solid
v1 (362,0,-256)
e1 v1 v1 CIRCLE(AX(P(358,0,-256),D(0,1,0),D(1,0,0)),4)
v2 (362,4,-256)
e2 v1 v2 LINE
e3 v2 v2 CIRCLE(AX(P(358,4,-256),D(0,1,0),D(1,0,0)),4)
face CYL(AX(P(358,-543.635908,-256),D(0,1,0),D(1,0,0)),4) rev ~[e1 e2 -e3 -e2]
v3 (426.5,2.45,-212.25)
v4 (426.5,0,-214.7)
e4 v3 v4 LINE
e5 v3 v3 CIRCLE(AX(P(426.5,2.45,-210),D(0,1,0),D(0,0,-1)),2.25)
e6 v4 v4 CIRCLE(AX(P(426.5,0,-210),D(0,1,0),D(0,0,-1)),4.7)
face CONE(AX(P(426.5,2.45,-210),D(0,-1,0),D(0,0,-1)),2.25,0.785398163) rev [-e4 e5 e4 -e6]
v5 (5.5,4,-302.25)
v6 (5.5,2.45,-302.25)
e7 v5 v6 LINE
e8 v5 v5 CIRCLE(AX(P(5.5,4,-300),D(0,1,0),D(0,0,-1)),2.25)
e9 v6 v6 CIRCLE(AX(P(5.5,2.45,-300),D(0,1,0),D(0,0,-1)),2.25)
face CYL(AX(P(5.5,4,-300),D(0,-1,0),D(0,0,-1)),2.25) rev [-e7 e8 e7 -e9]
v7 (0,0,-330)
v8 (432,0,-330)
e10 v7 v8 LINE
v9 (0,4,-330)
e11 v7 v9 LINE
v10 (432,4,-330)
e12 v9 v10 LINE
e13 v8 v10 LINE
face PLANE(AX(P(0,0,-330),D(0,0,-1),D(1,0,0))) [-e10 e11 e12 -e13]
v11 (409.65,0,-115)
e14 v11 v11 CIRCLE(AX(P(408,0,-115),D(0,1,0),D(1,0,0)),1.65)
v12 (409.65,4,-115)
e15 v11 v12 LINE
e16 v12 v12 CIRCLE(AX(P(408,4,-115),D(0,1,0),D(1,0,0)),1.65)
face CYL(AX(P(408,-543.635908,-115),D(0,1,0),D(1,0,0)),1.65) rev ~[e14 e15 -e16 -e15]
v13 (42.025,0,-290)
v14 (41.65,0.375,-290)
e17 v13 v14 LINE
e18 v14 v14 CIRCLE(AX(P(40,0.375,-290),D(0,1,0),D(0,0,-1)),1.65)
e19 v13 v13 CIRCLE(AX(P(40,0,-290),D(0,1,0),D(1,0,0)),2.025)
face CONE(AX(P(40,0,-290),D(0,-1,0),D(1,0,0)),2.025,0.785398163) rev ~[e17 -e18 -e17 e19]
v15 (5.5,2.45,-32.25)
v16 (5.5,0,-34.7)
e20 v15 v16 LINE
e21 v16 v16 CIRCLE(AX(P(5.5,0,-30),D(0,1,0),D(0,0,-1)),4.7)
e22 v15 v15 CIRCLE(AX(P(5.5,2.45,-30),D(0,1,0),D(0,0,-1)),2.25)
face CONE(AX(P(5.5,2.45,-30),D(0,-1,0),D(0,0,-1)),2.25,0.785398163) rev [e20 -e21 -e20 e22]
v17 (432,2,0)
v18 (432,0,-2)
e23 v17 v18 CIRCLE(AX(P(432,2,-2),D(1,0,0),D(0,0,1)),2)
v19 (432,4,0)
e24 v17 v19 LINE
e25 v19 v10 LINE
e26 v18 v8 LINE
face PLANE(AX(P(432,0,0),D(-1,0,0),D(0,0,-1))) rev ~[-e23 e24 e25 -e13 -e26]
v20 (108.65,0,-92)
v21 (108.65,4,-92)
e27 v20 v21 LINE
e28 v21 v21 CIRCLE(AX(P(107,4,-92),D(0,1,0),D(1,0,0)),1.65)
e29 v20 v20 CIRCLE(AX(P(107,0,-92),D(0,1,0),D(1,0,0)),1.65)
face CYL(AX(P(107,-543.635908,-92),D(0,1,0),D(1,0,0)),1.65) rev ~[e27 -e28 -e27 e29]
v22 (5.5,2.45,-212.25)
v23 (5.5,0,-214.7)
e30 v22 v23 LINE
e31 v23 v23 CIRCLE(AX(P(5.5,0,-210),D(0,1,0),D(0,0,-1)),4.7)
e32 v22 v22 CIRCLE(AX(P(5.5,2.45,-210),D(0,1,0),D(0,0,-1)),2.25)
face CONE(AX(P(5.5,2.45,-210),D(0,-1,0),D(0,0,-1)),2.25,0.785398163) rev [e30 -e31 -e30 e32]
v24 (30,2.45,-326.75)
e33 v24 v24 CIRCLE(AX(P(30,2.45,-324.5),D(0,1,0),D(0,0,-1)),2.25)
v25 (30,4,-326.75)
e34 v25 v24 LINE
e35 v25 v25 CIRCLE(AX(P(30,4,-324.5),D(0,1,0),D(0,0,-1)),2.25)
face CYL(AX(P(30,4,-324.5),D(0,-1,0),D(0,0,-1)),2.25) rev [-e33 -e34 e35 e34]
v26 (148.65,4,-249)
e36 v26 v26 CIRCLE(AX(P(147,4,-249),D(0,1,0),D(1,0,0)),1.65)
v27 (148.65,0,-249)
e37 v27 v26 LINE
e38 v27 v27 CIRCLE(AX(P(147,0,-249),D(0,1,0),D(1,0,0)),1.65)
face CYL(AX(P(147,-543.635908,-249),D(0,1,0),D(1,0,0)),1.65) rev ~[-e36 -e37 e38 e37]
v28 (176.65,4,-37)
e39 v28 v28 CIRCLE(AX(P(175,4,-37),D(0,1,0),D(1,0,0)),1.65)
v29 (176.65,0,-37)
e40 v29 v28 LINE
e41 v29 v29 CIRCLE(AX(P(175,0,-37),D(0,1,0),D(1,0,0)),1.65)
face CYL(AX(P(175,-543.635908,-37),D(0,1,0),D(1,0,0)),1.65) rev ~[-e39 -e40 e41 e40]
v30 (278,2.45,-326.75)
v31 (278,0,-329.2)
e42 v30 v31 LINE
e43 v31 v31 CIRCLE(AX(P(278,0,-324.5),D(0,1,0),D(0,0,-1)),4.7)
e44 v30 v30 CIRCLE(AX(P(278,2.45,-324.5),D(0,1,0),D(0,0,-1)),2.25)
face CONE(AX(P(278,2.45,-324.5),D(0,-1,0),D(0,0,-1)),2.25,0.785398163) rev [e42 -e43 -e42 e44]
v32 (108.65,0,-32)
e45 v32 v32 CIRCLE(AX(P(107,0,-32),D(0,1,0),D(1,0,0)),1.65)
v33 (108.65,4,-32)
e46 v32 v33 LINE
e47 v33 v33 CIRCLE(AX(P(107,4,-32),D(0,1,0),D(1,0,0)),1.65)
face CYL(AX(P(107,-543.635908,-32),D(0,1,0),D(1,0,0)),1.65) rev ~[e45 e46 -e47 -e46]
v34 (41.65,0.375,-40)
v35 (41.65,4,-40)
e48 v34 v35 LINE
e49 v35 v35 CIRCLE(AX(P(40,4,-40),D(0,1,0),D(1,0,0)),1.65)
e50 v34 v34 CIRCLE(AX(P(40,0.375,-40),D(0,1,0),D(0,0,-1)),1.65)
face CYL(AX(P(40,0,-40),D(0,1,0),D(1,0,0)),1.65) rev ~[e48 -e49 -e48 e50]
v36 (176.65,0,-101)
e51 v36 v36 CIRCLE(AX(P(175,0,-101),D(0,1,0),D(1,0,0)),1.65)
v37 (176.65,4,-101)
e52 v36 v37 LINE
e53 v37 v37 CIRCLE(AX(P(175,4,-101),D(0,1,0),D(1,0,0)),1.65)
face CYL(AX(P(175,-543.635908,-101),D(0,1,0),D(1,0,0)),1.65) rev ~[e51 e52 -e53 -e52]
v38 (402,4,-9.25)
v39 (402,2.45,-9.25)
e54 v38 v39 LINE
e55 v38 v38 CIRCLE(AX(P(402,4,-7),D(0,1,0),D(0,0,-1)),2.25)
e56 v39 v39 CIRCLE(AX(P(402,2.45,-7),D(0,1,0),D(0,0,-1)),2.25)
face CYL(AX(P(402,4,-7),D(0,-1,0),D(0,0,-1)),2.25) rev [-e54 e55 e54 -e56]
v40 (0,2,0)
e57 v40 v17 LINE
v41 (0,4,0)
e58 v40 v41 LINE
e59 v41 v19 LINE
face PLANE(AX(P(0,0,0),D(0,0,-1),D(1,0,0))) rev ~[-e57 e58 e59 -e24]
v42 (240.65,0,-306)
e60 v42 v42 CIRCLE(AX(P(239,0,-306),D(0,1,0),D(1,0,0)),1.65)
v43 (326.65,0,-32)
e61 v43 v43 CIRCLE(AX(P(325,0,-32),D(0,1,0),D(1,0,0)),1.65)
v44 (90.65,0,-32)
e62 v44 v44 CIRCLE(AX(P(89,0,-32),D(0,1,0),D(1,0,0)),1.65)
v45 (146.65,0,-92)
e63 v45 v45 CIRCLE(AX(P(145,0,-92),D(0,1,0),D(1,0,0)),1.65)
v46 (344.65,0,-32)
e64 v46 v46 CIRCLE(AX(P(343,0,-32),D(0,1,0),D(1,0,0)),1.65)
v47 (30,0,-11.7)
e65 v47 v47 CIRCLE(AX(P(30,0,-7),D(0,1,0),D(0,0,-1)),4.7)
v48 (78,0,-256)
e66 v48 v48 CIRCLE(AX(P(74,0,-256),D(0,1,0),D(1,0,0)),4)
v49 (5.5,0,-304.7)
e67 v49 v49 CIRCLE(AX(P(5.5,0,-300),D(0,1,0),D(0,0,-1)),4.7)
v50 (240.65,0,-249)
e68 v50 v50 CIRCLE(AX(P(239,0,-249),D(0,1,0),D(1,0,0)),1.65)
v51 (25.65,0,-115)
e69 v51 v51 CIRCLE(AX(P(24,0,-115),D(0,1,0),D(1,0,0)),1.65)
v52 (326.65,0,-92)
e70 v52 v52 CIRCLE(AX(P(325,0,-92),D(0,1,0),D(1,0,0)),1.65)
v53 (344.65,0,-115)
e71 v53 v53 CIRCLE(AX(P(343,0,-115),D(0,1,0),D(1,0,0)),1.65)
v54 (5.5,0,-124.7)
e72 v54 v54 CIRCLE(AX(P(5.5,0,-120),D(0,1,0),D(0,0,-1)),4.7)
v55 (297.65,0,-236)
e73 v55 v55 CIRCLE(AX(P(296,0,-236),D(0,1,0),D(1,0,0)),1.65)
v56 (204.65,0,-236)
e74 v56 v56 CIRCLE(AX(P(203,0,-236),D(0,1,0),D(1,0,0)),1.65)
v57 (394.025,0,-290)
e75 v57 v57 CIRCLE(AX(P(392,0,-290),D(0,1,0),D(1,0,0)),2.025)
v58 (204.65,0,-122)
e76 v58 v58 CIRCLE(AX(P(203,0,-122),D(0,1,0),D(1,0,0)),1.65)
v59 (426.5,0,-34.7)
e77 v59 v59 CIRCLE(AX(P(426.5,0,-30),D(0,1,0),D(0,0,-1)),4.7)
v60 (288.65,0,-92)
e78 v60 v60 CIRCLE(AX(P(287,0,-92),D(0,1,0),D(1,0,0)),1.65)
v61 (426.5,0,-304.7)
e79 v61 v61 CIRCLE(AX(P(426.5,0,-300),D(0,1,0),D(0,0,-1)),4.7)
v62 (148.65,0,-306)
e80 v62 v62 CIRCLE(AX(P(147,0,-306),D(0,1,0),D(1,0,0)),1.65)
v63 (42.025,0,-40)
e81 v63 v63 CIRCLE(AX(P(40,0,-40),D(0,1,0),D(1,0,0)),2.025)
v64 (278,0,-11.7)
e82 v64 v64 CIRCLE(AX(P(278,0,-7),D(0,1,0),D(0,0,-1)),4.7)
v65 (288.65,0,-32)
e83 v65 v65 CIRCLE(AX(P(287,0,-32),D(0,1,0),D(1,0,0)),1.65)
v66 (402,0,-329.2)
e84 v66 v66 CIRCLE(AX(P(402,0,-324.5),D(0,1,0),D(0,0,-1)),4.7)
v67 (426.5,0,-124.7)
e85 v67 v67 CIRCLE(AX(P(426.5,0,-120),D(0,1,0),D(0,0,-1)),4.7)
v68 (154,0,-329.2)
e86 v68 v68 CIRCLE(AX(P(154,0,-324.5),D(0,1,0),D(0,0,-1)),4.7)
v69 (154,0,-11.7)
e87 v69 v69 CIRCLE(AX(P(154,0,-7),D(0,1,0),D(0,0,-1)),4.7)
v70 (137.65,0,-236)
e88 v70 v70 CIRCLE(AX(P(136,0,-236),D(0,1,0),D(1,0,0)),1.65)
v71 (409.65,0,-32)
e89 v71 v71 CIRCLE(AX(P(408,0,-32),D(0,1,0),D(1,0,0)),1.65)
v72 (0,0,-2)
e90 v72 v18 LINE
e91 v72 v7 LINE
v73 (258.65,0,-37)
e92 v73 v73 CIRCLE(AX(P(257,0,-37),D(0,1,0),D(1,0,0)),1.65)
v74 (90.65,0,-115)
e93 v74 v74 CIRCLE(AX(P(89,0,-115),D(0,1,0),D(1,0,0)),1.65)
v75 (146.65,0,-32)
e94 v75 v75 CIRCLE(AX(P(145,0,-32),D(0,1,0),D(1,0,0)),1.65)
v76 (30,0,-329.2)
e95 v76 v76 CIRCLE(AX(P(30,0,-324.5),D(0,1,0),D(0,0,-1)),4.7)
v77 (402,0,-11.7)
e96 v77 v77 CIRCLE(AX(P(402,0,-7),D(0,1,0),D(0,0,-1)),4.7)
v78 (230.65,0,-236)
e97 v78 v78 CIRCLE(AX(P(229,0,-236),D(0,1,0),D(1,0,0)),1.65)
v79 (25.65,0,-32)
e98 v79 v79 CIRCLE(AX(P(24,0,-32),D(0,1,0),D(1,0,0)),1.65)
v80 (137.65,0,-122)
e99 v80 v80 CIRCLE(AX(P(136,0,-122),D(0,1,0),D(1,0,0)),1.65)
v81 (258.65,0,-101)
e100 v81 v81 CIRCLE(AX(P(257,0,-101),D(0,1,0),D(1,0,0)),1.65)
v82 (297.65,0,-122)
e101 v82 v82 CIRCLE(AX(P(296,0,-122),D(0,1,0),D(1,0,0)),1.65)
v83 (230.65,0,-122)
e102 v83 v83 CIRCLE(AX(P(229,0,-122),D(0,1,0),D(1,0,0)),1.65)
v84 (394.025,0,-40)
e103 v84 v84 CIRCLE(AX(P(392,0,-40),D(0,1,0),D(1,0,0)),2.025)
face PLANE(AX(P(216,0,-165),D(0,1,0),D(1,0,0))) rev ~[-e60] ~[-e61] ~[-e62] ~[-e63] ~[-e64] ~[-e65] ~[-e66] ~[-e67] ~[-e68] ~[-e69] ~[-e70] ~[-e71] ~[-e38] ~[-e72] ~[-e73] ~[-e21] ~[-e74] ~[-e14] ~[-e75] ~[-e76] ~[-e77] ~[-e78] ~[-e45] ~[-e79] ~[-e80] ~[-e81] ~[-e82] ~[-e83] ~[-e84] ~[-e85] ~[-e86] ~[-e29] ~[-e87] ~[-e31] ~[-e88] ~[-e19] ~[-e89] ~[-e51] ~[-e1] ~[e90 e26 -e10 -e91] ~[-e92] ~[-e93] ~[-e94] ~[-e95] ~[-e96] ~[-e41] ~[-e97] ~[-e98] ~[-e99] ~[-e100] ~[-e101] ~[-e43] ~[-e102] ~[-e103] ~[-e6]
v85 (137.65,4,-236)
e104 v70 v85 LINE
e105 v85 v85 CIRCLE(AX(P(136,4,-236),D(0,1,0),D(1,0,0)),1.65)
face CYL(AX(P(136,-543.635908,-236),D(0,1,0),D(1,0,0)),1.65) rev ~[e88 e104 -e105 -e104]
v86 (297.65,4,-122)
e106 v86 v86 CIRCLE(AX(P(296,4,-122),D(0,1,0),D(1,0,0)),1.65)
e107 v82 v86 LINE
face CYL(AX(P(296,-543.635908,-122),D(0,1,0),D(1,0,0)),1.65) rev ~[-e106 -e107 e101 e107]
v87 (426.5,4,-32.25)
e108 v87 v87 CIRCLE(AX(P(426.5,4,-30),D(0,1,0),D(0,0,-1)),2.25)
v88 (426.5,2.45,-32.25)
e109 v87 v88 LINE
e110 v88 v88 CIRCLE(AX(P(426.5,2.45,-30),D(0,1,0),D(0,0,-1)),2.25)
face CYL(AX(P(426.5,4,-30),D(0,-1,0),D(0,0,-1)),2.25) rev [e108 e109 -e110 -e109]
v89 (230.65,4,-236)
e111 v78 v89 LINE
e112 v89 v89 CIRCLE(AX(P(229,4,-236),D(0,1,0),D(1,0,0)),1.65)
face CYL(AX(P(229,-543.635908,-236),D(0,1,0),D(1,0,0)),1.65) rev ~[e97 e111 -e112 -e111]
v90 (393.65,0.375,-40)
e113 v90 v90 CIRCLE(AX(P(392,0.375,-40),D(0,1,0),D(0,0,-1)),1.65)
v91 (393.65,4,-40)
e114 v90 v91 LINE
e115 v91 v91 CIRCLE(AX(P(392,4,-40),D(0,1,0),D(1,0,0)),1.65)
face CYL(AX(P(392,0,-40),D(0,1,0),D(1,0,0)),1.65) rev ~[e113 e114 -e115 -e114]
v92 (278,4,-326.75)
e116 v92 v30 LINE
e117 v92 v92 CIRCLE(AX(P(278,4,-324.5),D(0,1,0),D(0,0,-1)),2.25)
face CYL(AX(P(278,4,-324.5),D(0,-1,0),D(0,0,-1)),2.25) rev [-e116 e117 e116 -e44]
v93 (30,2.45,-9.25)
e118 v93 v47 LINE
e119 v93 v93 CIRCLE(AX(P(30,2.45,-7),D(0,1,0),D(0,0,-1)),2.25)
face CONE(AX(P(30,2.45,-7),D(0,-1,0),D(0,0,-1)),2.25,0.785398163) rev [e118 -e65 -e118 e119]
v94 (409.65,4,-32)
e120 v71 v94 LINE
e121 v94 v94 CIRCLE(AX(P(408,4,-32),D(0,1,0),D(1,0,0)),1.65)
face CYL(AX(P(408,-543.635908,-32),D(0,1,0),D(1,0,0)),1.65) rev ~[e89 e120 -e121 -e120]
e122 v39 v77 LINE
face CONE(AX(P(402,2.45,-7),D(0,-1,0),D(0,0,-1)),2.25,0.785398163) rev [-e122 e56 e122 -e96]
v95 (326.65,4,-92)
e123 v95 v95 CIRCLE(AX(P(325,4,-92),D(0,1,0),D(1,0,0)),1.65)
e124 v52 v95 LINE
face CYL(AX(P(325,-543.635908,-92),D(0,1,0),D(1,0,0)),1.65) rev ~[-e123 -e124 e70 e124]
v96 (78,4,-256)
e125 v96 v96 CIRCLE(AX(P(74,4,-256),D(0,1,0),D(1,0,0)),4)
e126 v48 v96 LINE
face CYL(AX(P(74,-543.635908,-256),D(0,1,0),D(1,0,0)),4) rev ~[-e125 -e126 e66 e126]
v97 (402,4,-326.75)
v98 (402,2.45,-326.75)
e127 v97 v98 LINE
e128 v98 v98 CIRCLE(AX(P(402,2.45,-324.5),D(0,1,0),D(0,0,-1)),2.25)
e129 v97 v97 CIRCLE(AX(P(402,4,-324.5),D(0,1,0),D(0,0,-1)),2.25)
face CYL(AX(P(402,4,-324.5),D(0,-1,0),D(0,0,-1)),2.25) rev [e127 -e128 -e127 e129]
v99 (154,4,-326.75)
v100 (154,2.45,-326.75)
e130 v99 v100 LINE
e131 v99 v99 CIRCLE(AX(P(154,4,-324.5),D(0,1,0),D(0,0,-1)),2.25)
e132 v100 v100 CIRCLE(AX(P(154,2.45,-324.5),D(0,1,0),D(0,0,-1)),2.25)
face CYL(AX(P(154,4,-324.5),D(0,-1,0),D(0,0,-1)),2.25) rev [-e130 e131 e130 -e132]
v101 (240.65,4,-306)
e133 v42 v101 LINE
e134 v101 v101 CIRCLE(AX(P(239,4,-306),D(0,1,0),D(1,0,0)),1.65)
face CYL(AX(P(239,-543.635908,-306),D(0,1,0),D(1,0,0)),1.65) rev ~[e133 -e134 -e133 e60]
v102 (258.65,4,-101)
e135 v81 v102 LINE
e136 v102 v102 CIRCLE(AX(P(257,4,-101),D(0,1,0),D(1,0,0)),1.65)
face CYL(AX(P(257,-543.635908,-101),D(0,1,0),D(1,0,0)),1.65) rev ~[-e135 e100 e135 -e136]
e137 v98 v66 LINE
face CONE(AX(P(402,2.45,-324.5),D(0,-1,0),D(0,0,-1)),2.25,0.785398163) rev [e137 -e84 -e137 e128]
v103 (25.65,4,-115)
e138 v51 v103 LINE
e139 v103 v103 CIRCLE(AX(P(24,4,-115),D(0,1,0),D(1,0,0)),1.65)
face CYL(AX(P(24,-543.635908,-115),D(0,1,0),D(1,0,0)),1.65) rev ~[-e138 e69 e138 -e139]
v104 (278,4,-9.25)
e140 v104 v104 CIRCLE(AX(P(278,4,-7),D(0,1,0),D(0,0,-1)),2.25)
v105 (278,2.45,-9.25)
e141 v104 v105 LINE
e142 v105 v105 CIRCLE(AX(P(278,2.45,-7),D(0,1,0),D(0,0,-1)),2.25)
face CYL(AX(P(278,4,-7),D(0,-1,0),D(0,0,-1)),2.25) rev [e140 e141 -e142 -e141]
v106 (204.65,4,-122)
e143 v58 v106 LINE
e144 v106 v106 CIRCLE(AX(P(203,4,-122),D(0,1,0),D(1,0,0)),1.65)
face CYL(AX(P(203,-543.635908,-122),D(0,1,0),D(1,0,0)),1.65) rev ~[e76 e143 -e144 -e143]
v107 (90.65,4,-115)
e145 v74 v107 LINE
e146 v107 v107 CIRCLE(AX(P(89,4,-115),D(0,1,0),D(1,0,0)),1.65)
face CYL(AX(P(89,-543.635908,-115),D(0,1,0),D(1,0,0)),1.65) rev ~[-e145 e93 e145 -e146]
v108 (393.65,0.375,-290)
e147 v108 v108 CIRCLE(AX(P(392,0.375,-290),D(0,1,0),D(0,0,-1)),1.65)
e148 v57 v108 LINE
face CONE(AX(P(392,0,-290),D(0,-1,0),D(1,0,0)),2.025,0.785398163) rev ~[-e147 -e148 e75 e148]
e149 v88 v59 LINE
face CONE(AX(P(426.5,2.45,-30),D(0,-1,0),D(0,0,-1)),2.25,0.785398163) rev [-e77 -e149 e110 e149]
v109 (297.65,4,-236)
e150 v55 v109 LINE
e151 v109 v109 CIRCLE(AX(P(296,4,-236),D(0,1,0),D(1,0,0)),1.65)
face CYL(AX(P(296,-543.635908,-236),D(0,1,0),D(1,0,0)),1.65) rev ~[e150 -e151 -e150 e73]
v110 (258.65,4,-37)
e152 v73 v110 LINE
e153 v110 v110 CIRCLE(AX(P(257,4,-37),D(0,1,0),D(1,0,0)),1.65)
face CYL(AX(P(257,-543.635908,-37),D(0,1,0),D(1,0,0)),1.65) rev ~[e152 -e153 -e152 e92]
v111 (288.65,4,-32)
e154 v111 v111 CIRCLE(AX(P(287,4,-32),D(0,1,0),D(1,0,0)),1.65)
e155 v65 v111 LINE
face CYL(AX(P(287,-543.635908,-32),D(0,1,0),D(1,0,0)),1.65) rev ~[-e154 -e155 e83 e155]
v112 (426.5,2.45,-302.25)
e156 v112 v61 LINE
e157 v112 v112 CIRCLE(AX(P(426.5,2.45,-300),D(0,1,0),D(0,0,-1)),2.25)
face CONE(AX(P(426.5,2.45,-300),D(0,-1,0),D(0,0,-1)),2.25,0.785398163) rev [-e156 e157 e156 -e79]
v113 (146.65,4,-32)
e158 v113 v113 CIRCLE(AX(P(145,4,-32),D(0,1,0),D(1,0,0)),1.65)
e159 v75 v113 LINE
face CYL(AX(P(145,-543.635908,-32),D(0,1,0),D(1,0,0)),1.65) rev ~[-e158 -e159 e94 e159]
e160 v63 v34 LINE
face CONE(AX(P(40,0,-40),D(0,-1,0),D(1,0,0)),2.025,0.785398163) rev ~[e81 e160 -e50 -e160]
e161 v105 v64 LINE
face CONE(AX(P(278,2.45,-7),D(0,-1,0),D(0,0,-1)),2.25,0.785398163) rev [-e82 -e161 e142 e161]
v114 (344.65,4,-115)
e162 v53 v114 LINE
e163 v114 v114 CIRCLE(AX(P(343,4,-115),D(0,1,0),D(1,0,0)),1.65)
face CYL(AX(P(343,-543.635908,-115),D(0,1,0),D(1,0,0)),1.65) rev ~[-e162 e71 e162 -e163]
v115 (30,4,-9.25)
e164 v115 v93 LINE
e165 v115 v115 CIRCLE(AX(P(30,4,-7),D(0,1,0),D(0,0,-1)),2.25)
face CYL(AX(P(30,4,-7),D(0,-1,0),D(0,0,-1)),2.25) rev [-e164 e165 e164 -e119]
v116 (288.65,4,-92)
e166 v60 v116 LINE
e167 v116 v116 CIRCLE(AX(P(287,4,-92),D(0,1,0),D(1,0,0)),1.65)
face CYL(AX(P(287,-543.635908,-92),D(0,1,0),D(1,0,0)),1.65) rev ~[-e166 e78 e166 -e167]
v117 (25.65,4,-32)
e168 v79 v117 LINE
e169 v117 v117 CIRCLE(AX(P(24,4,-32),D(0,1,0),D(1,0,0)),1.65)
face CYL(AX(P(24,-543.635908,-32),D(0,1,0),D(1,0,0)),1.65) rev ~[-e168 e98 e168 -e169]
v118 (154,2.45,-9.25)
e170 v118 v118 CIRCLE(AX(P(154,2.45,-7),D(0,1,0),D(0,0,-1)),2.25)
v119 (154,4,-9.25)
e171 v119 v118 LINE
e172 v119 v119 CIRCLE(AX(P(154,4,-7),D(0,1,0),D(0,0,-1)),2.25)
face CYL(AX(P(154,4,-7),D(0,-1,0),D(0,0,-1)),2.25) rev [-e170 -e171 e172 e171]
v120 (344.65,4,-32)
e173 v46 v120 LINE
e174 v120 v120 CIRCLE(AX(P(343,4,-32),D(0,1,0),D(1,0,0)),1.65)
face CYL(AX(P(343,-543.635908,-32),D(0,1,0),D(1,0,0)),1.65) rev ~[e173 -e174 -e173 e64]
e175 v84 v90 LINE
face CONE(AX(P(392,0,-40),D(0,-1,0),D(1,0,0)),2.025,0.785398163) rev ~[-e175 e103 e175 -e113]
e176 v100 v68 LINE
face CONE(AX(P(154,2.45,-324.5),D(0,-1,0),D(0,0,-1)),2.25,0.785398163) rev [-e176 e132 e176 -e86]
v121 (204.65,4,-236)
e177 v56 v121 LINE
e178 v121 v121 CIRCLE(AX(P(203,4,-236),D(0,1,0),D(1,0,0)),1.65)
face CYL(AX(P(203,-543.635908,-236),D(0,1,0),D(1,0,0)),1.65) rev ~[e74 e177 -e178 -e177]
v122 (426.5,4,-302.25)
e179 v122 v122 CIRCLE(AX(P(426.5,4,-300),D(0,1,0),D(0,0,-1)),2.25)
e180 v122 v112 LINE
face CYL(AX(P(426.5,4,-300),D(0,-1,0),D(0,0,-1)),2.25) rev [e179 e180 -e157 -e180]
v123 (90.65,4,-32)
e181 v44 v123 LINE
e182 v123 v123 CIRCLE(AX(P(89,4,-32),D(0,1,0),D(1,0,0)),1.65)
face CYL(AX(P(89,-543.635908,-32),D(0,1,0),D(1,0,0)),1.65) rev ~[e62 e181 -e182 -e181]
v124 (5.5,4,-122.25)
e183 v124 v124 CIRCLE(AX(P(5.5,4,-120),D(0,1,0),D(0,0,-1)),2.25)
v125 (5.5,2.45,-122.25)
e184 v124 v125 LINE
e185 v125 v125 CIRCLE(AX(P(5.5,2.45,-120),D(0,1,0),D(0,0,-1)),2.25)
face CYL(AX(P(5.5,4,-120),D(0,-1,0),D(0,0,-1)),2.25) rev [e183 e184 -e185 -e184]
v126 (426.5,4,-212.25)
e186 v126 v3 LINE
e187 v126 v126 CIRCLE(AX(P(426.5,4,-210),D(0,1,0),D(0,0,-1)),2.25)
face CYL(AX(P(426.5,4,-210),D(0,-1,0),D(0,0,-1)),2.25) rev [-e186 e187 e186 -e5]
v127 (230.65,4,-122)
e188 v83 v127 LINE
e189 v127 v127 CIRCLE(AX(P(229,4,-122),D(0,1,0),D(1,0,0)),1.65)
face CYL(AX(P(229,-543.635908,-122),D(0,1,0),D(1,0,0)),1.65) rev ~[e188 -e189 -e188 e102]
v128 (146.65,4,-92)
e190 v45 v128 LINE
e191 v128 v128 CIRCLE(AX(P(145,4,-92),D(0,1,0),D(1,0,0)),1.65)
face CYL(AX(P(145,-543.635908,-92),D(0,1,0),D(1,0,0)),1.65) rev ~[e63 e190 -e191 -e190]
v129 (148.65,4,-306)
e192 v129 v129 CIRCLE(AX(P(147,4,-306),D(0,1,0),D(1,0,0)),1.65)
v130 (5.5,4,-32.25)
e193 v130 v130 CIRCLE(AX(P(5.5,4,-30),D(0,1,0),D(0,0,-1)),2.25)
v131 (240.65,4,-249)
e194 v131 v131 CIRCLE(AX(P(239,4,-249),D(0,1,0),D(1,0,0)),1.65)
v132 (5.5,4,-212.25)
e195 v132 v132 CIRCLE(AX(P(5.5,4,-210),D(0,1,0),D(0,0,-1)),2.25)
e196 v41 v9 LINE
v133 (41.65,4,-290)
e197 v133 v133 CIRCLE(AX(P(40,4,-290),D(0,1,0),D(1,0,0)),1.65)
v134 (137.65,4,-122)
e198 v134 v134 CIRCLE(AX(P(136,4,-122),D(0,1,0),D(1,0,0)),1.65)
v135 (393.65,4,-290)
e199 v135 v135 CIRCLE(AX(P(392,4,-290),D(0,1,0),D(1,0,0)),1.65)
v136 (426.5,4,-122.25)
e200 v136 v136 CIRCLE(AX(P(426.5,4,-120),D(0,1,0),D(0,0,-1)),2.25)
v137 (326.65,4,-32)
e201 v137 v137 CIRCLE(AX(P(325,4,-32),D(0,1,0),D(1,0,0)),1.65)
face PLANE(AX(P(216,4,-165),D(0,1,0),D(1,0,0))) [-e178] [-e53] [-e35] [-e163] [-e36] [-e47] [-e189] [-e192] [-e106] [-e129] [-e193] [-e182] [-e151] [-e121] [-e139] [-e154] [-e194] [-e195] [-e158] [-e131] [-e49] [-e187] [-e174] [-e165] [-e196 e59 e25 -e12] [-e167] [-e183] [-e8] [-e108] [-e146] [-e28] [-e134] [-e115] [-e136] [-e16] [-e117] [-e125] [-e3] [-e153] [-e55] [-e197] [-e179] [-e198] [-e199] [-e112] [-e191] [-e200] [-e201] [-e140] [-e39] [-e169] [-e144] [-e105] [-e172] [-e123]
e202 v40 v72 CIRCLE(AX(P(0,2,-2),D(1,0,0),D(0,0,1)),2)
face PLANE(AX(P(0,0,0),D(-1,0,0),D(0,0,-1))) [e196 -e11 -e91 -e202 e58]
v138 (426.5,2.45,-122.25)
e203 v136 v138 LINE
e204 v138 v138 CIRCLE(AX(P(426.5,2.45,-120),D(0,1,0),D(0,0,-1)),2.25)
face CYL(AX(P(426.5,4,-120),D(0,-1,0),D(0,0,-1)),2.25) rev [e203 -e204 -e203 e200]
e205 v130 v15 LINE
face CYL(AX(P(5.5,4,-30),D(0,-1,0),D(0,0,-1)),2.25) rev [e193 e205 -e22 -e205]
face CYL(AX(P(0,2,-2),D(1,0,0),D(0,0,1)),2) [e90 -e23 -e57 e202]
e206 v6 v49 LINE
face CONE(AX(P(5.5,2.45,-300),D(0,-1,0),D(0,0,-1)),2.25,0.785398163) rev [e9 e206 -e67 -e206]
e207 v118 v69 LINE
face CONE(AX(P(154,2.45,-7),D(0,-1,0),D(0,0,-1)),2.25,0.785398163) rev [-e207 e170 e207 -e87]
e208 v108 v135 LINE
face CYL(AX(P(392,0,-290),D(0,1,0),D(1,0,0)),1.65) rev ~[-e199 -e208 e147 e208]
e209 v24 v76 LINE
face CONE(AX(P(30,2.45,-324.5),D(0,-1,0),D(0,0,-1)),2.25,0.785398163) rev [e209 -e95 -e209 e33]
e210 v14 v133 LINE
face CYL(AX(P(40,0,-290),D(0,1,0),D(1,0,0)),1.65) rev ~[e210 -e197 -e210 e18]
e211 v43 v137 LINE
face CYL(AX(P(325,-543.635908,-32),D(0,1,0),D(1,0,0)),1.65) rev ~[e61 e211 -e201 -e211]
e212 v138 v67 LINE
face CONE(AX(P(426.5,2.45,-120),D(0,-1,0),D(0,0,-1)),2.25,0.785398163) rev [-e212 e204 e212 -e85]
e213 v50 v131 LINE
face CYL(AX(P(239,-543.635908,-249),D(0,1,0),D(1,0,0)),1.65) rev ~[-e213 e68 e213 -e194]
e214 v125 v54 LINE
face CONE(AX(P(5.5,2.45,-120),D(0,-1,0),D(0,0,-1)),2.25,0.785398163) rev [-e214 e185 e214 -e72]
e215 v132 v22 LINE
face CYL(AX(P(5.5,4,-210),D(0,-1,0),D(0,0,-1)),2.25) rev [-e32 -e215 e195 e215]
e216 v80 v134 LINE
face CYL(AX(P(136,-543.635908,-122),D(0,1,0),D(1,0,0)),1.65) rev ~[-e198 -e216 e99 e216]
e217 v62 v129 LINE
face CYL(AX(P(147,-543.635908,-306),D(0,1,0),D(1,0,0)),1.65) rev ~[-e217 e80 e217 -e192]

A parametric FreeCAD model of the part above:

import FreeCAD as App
import Part
import Sketcher
Q = App.Units.Quantity


def edges_at(feature, points):
    """Names of the edges that pass closest to the given points."""
    edges = feature.Shape.Edges
    near = lambda p: min(range(len(edges)), key=lambda i: edges[i].distToShape(Part.Vertex(*p))[0])
    return sorted({f"Edge{near(p) + 1}" for p in points})

doc = App.newDocument("Part")
body = doc.addObject("PartDesign::Body", "Body")

# Sketch on XZ plane
sketch1 = body.newObject("Sketcher::SketchObject", "Sketch")
sketch1.AttachmentSupport = (doc.getObject("XZ_Plane"), [""])
sketch1.MapMode = "FlatFace"
sketch1.addGeometry([
    Part.LineSegment(App.Vector(0, -330, 0), App.Vector(0, 0, 0)),
    Part.LineSegment(App.Vector(0, 0, 0), App.Vector(432, 0, 0)),
    Part.LineSegment(App.Vector(432, 0, 0), App.Vector(432, -330, 0)),
    Part.LineSegment(App.Vector(432, -330, 0), App.Vector(0, -330, 0)),
], False)
sketch1.addConstraint([
    Sketcher.Constraint("Coincident", 0, 2, 1, 1),
    Sketcher.Constraint("Coincident", 1, 2, 2, 1),
    Sketcher.Constraint("Coincident", 2, 2, 3, 1),
    Sketcher.Constraint("Coincident", 3, 2, 0, 1),
    Sketcher.Constraint("Vertical", 0),
    Sketcher.Constraint("Horizontal", 1),
    Sketcher.Constraint("Vertical", 2),
    Sketcher.Constraint("Horizontal", 3),
    Sketcher.Constraint("Coincident", 0, 2, -1, 1),
    Sketcher.Constraint("DistanceX", 1, 1, 1, 2, 432.0),
    Sketcher.Constraint("DistanceY", 0, 1, 0, 2, 330.0),
])
pad1 = body.newObject("PartDesign::Pad", "Pad")
pad1.Profile = sketch1
pad1.Length = 4
pad1.Reversed = True

# Sketch on YZ plane
sketch2 = body.newObject("Sketcher::SketchObject", "Sketch001")
sketch2.AttachmentSupport = (doc.getObject("YZ_Plane"), [""])
sketch2.MapMode = "FlatFace"
sketch2.AttachmentOffset = App.Placement(App.Vector(0, 0, 30), App.Rotation())
sketch2.addGeometry([
    Part.LineSegment(App.Vector(4, -7, 0), App.Vector(0, -7, 0)),  # 0
    Part.LineSegment(App.Vector(0, -7, 0), App.Vector(0, -11.7, 0)),  # 1
    Part.LineSegment(App.Vector(0, -11.7, 0), App.Vector(2.45, -9.25, 0)),  # 2
    Part.LineSegment(App.Vector(2.45, -9.25, 0), App.Vector(4, -9.25, 0)),  # 3
    Part.LineSegment(App.Vector(4, -9.25, 0), App.Vector(4, -7, 0)),  # 4
], False)
sketch2.addGeometry(Part.LineSegment(App.Vector(0, -7, 0), App.Vector(4, -7, 0)), True)  # axis
sketch2.addConstraint([
    Sketcher.Constraint("Coincident", 0, 2, 1, 1),
    Sketcher.Constraint("Coincident", 1, 2, 2, 1),
    Sketcher.Constraint("Coincident", 2, 2, 3, 1),
    Sketcher.Constraint("Coincident", 3, 2, 4, 1),
    Sketcher.Constraint("Coincident", 4, 2, 0, 1),
    Sketcher.Constraint("Horizontal", 0),
    Sketcher.Constraint("Vertical", 1),
    Sketcher.Constraint("Horizontal", 3),
    Sketcher.Constraint("Vertical", 4),
    Sketcher.Constraint("Horizontal", 5),
    Sketcher.Constraint("Coincident", 5, 1, 0, 2),
    Sketcher.Constraint("PointOnObject", 0, 2, -2),
    Sketcher.Constraint("Vertical", 3, 2, 5, 2),
    Sketcher.Constraint("DistanceX", 0, 2, 0, 1, 4.0),
    Sketcher.Constraint("Angle", 2, Q("45 deg")),
    Sketcher.Constraint("DistanceY", 1, 2, 1, 1, 4.7),
    Sketcher.Constraint("DistanceY", 0, 2, -1, 1, 7.0),
    Sketcher.Constraint("DistanceX", 3, 1, 3, 2, 1.55),
])
groove = body.newObject("PartDesign::Groove", "Groove")
groove.Profile = sketch2
groove.ReferenceAxis = (sketch2, ["Axis0"])
groove.Angle = 360
doc.recompute()

datumline = body.newObject("PartDesign::Line", "DatumLine")
datumline.Placement = App.Placement(App.Vector(0, 0, 0), App.Rotation(App.Vector(0, 0, 1), App.Vector(-0.083326947, 0, -0.996522263)))
linearpattern = body.newObject("PartDesign::LinearPattern", "LinearPattern")
linearpattern.Originals = [groove]
linearpattern.Direction = (datumline, [""])
linearpattern.Mode = "offset"
linearpattern.Offset = 294.022533
linearpattern.Occurrences = 2
body.Tip = linearpattern
doc.recompute()

datumline2 = body.newObject("PartDesign::Line", "DatumLine001")
datumline2.Placement = App.Placement(App.Vector(0, 0, 0), App.Rotation(App.Vector(0, 0, 1), App.Vector(-0.11982016, 0, -0.992795613)))
linearpattern2 = body.newObject("PartDesign::LinearPattern", "LinearPattern001")
linearpattern2.Originals = [groove]
linearpattern2.Direction = (datumline2, [""])
linearpattern2.Mode = "offset"
linearpattern2.Offset = 204.473103
linearpattern2.Occurrences = 2
body.Tip = linearpattern2
doc.recompute()

datumline3 = body.newObject("PartDesign::Line", "DatumLine002")
datumline3.Placement = App.Placement(App.Vector(0, 0, 0), App.Rotation(App.Vector(0, 0, 1), App.Vector(-0.211891025, 0, -0.9772933)))
linearpattern3 = body.newObject("PartDesign::LinearPattern", "LinearPattern002")
linearpattern3.Originals = [groove]
linearpattern3.Direction = (datumline3, [""])
linearpattern3.Mode = "offset"
linearpattern3.Offset = 115.625473
linearpattern3.Occurrences = 2
body.Tip = linearpattern3
doc.recompute()

datumline4 = body.newObject("PartDesign::Line", "DatumLine003")
datumline4.Placement = App.Placement(App.Vector(0, 0, 0), App.Rotation(App.Vector(0, 0, 1), App.Vector(-0.729073033, 0, -0.684435908)))
linearpattern4 = body.newObject("PartDesign::LinearPattern", "LinearPattern003")
linearpattern4.Originals = [groove]
linearpattern4.Direction = (datumline4, [""])
linearpattern4.Mode = "offset"
linearpattern4.Offset = 33.604315
linearpattern4.Occurrences = 2
body.Tip = linearpattern4
doc.recompute()

linearpattern5 = body.newObject("PartDesign::LinearPattern", "LinearPattern004")
linearpattern5.Originals = [groove]
linearpattern5.Direction = (doc.getObject("X_Axis"), [""])
linearpattern5.Mode = "offset"
linearpattern5.Offset = 124
linearpattern5.Occurrences = 2
body.Tip = linearpattern5
doc.recompute()

linearpattern6 = body.newObject("PartDesign::LinearPattern", "LinearPattern005")
linearpattern6.Originals = [groove]
linearpattern6.Direction = (doc.getObject("X_Axis"), [""])
linearpattern6.Mode = "offset"
linearpattern6.Offset = 248
linearpattern6.Occurrences = 2
body.Tip = linearpattern6
doc.recompute()

linearpattern7 = body.newObject("PartDesign::LinearPattern", "LinearPattern006")
linearpattern7.Originals = [groove]
linearpattern7.Direction = (doc.getObject("X_Axis"), [""])
linearpattern7.Mode = "offset"
linearpattern7.Offset = 372
linearpattern7.Occurrences = 2
body.Tip = linearpattern7
doc.recompute()

datumline5 = body.newObject("PartDesign::Line", "DatumLine004")
datumline5.Placement = App.Placement(App.Vector(0, 0, 0), App.Rotation(App.Vector(0, 0, 1), App.Vector(0.998321795, 0, -0.057910218)))
linearpattern8 = body.newObject("PartDesign::LinearPattern", "LinearPattern007")
linearpattern8.Originals = [groove]
linearpattern8.Direction = (datumline5, [""])
linearpattern8.Mode = "offset"
linearpattern8.Offset = 397.166527
linearpattern8.Occurrences = 2
body.Tip = linearpattern8
doc.recompute()

datumline6 = body.newObject("PartDesign::Line", "DatumLine005")
datumline6.Placement = App.Placement(App.Vector(0, 0, 0), App.Rotation(App.Vector(0, 0, 1), App.Vector(0.96170679, 0, -0.274080371)))
linearpattern9 = body.newObject("PartDesign::LinearPattern", "LinearPattern008")
linearpattern9.Originals = [groove]
linearpattern9.Direction = (datumline6, [""])
linearpattern9.Mode = "offset"
linearpattern9.Offset = 412.287824
linearpattern9.Occurrences = 2
body.Tip = linearpattern9
doc.recompute()

datumline7 = body.newObject("PartDesign::Line", "DatumLine006")
datumline7.Placement = App.Placement(App.Vector(0, 0, 0), App.Rotation(App.Vector(0, 0, 1), App.Vector(0.89012111, 0, -0.455724049)))
linearpattern10 = body.newObject("PartDesign::LinearPattern", "LinearPattern009")
linearpattern10.Originals = [groove]
linearpattern10.Direction = (datumline7, [""])
linearpattern10.Mode = "offset"
linearpattern10.Offset = 445.445002
linearpattern10.Occurrences = 2
body.Tip = linearpattern10
doc.recompute()

datumline8 = body.newObject("PartDesign::Line", "DatumLine007")
datumline8.Placement = App.Placement(App.Vector(0, 0, 0), App.Rotation(App.Vector(0, 0, 1), App.Vector(0.804239368, 0, -0.59430551)))
linearpattern11 = body.newObject("PartDesign::LinearPattern", "LinearPattern010")
linearpattern11.Originals = [groove]
linearpattern11.Direction = (datumline8, [""])
linearpattern11.Mode = "offset"
linearpattern11.Offset = 493.012424
linearpattern11.Occurrences = 2
body.Tip = linearpattern11
doc.recompute()

datumline9 = body.newObject("PartDesign::Line", "DatumLine008")
datumline9.Placement = App.Placement(App.Vector(0, 0, 0), App.Rotation(App.Vector(0, 0, 1), App.Vector(0.760626065, 0, -0.649190257)))
linearpattern12 = body.newObject("PartDesign::LinearPattern", "LinearPattern011")
linearpattern12.Originals = [groove]
linearpattern12.Direction = (datumline9, [""])
linearpattern12.Mode = "offset"
linearpattern12.Offset = 489.070803
linearpattern12.Occurrences = 2
body.Tip = linearpattern12
doc.recompute()

datumline10 = body.newObject("PartDesign::Line", "DatumLine009")
datumline10.Placement = App.Placement(App.Vector(0, 0, 0), App.Rotation(App.Vector(0, 0, 1), App.Vector(0.615571788, 0, -0.788080817)))
linearpattern13 = body.newObject("PartDesign::LinearPattern", "LinearPattern012")
linearpattern13.Originals = [groove]
linearpattern13.Direction = (datumline10, [""])
linearpattern13.Mode = "offset"
linearpattern13.Offset = 402.877463
linearpattern13.Occurrences = 2
body.Tip = linearpattern13
doc.recompute()

datumline11 = body.newObject("PartDesign::Line", "DatumLine010")
datumline11.Placement = App.Placement(App.Vector(0, 0, 0), App.Rotation(App.Vector(0, 0, 1), App.Vector(0.363790869, 0, -0.931480651)))
linearpattern14 = body.newObject("PartDesign::LinearPattern", "LinearPattern013")
linearpattern14.Originals = [groove]
linearpattern14.Direction = (datumline11, [""])
linearpattern14.Mode = "offset"
linearpattern14.Offset = 340.855174
linearpattern14.Occurrences = 2
body.Tip = linearpattern14
doc.recompute()

linearpattern15 = body.newObject("PartDesign::LinearPattern", "LinearPattern014")
linearpattern15.Originals = [groove]
linearpattern15.Direction = (doc.getObject("Z_Axis"), [""])
linearpattern15.Mode = "offset"
linearpattern15.Offset = 317.5
linearpattern15.Occurrences = 2
linearpattern15.Reversed = True
body.Tip = linearpattern15
doc.recompute()

fillet = body.newObject("PartDesign::Fillet", "Fillet")
fillet.Base = (linearpattern15, edges_at(linearpattern15, [(216, 0, 0)]))
fillet.Radius = 2

# Sketch on XZ plane
sketch3 = body.newObject("Sketcher::SketchObject", "Sketch002")
sketch3.AttachmentSupport = (doc.getObject("XZ_Plane"), [""])
sketch3.MapMode = "FlatFace"
sketch3.addGeometry([
    Part.Circle(App.Vector(74, -256, 0), App.Vector(0, 0, 1), 4),
    Part.Circle(App.Vector(358, -256, 0), App.Vector(0, 0, 1), 4),
], False)
sketch3.addConstraint([
    Sketcher.Constraint("Equal", 0, 1),
    Sketcher.Constraint("Horizontal", 0, 3, 1, 3),
    Sketcher.Constraint("Diameter", 0, 8.0),
    Sketcher.Constraint("DistanceX", -1, 1, 0, 3, 74.0),
    Sketcher.Constraint("DistanceY", 0, 3, -1, 1, 256.0),
    Sketcher.Constraint("DistanceX", -1, 1, 1, 3, 358.0),
])
doc.recompute()
hole = body.newObject("PartDesign::Hole", "Hole")
hole.Profile = sketch3
hole.ThreadType = "None"
hole.Diameter = 8
hole.DepthType = "ThroughAll"

# Sketch on XZ plane
sketch4 = body.newObject("Sketcher::SketchObject", "Sketch003")
sketch4.AttachmentSupport = (doc.getObject("XZ_Plane"), [""])
sketch4.MapMode = "FlatFace"
sketch4.addGeometry([
    Part.Circle(App.Vector(107, -32, 0), App.Vector(0, 0, 1), 1.65),  # 0
    Part.Circle(App.Vector(107, -92, 0), App.Vector(0, 0, 1), 1.65),  # 1
    Part.Circle(App.Vector(145, -32, 0), App.Vector(0, 0, 1), 1.65),  # 2
    Part.Circle(App.Vector(145, -92, 0), App.Vector(0, 0, 1), 1.65),  # 3
    Part.Circle(App.Vector(287, -32, 0), App.Vector(0, 0, 1), 1.65),  # 4
    Part.Circle(App.Vector(287, -92, 0), App.Vector(0, 0, 1), 1.65),  # 5
    Part.Circle(App.Vector(325, -32, 0), App.Vector(0, 0, 1), 1.65),  # 6
    Part.Circle(App.Vector(325, -92, 0), App.Vector(0, 0, 1), 1.65),  # 7
    Part.Circle(App.Vector(147, -249, 0), App.Vector(0, 0, 1), 1.65),  # 8
    Part.Circle(App.Vector(239, -249, 0), App.Vector(0, 0, 1), 1.65),  # 9
    Part.Circle(App.Vector(147, -306, 0), App.Vector(0, 0, 1), 1.65),  # 10
    Part.Circle(App.Vector(239, -306, 0), App.Vector(0, 0, 1), 1.65),  # 11
], False)
sketch4.addConstraint([
    Sketcher.Constraint("Equal", 0, 1),
    Sketcher.Constraint("Equal", 1, 2),
    Sketcher.Constraint("Equal", 2, 3),
    Sketcher.Constraint("Equal", 3, 4),
    Sketcher.Constraint("Equal", 4, 5),
    Sketcher.Constraint("Equal", 5, 6),
    Sketcher.Constraint("Equal", 6, 7),
    Sketcher.Constraint("Equal", 7, 8),
    Sketcher.Constraint("Equal", 8, 9),
    Sketcher.Constraint("Equal", 9, 10),
    Sketcher.Constraint("Equal", 10, 11),
    Sketcher.Constraint("Horizontal", 0, 3, 2, 3),
    Sketcher.Constraint("Horizontal", 1, 3, 3, 3),
    Sketcher.Constraint("Horizontal", 2, 3, 4, 3),
    Sketcher.Constraint("Horizontal", 3, 3, 5, 3),
    Sketcher.Constraint("Horizontal", 4, 3, 6, 3),
    Sketcher.Constraint("Horizontal", 5, 3, 7, 3),
    Sketcher.Constraint("Horizontal", 8, 3, 9, 3),
    Sketcher.Constraint("Horizontal", 10, 3, 11, 3),
    Sketcher.Constraint("Vertical", 0, 3, 1, 3),
    Sketcher.Constraint("Vertical", 2, 3, 3, 3),
    Sketcher.Constraint("Vertical", 4, 3, 5, 3),
    Sketcher.Constraint("Vertical", 6, 3, 7, 3),
    Sketcher.Constraint("Vertical", 8, 3, 10, 3),
    Sketcher.Constraint("Vertical", 9, 3, 11, 3),
    Sketcher.Constraint("Diameter", 0, 3.3),
    Sketcher.Constraint("DistanceX", -1, 1, 0, 3, 107.0),
    Sketcher.Constraint("DistanceY", 0, 3, -1, 1, 32.0),
    Sketcher.Constraint("DistanceY", 1, 3, -1, 1, 92.0),
    Sketcher.Constraint("DistanceX", -1, 1, 2, 3, 145.0),
    Sketcher.Constraint("DistanceX", -1, 1, 4, 3, 287.0),
    Sketcher.Constraint("DistanceX", -1, 1, 6, 3, 325.0),
    Sketcher.Constraint("DistanceX", -1, 1, 8, 3, 147.0),
    Sketcher.Constraint("DistanceY", 8, 3, -1, 1, 249.0),
    Sketcher.Constraint("DistanceX", -1, 1, 9, 3, 239.0),
    Sketcher.Constraint("DistanceY", 10, 3, -1, 1, 306.0),
])
doc.recompute()
hole2 = body.newObject("PartDesign::Hole", "Hole001")
hole2.Profile = sketch4
hole2.ThreadType = "None"
hole2.Diameter = 3.3
hole2.DepthType = "ThroughAll"

# Sketch on XZ plane
sketch5 = body.newObject("Sketcher::SketchObject", "Sketch004")
sketch5.AttachmentSupport = (doc.getObject("XZ_Plane"), [""])
sketch5.MapMode = "FlatFace"
sketch5.addGeometry([
    Part.Circle(App.Vector(40, -40, 0), App.Vector(0, 0, 1), 1.65),
    Part.Circle(App.Vector(40, -290, 0), App.Vector(0, 0, 1), 1.65),
    Part.Circle(App.Vector(392, -290, 0), App.Vector(0, 0, 1), 1.65),
    Part.Circle(App.Vector(392, -40, 0), App.Vector(0, 0, 1), 1.65),
], False)
sketch5.addConstraint([
    Sketcher.Constraint("Equal", 0, 1),
    Sketcher.Constraint("Equal", 1, 2),
    Sketcher.Constraint("Equal", 2, 3),
    Sketcher.Constraint("Horizontal", 1, 3, 2, 3),
    Sketcher.Constraint("Horizontal", 0, 3, 3, 3),
    Sketcher.Constraint("Vertical", 0, 3, 1, 3),
    Sketcher.Constraint("Vertical", 2, 3, 3, 3),
    Sketcher.Constraint("Diameter", 0, 3.3),
    Sketcher.Constraint("DistanceX", -1, 1, 0, 3, 40.0),
    Sketcher.Constraint("DistanceY", 0, 3, -1, 1, 40.0),
    Sketcher.Constraint("DistanceY", 1, 3, -1, 1, 290.0),
    Sketcher.Constraint("DistanceX", -1, 1, 2, 3, 392.0),
])
doc.recompute()
hole3 = body.newObject("PartDesign::Hole", "Hole002")
hole3.Profile = sketch5
hole3.ThreadType = "None"
hole3.Diameter = 3.3
hole3.DepthType = "ThroughAll"
hole3.HoleCutType = "Countersink"
hole3.HoleCutDiameter = 4.05
hole3.HoleCutCountersinkAngle = 90

# Sketch on XZ plane
sketch6 = body.newObject("Sketcher::SketchObject", "Sketch005")
sketch6.AttachmentSupport = (doc.getObject("XZ_Plane"), [""])
sketch6.MapMode = "FlatFace"
sketch6.addGeometry([
    Part.Circle(App.Vector(24, -32, 0), App.Vector(0, 0, 1), 1.65),  # 0
    Part.Circle(App.Vector(89, -32, 0), App.Vector(0, 0, 1), 1.65),  # 1
    Part.Circle(App.Vector(24, -115, 0), App.Vector(0, 0, 1), 1.65),  # 2
    Part.Circle(App.Vector(89, -115, 0), App.Vector(0, 0, 1), 1.65),  # 3
    Part.Circle(App.Vector(136, -122, 0), App.Vector(0, 0, 1), 1.65),  # 4
    Part.Circle(App.Vector(136, -236, 0), App.Vector(0, 0, 1), 1.65),  # 5
    Part.Circle(App.Vector(203, -122, 0), App.Vector(0, 0, 1), 1.65),  # 6
    Part.Circle(App.Vector(203, -236, 0), App.Vector(0, 0, 1), 1.65),  # 7
    Part.Circle(App.Vector(229, -122, 0), App.Vector(0, 0, 1), 1.65),  # 8
    Part.Circle(App.Vector(229, -236, 0), App.Vector(0, 0, 1), 1.65),  # 9
    Part.Circle(App.Vector(296, -122, 0), App.Vector(0, 0, 1), 1.65),  # 10
    Part.Circle(App.Vector(296, -236, 0), App.Vector(0, 0, 1), 1.65),  # 11
    Part.Circle(App.Vector(343, -32, 0), App.Vector(0, 0, 1), 1.65),  # 12
    Part.Circle(App.Vector(408, -32, 0), App.Vector(0, 0, 1), 1.65),  # 13
    Part.Circle(App.Vector(408, -115, 0), App.Vector(0, 0, 1), 1.65),  # 14
    Part.Circle(App.Vector(343, -115, 0), App.Vector(0, 0, 1), 1.65),  # 15
], False)
sketch6.addConstraint([
    Sketcher.Constraint("Equal", 0, 1),
    Sketcher.Constraint("Equal", 1, 2),
    Sketcher.Constraint("Equal", 2, 3),
    Sketcher.Constraint("Equal", 3, 4),
    Sketcher.Constraint("Equal", 4, 5),
    Sketcher.Constraint("Equal", 5, 6),
    Sketcher.Constraint("Equal", 6, 7),
    Sketcher.Constraint("Equal", 7, 8),
    Sketcher.Constraint("Equal", 8, 9),
    Sketcher.Constraint("Equal", 9, 10),
    Sketcher.Constraint("Equal", 10, 11),
    Sketcher.Constraint("Equal", 11, 12),
    Sketcher.Constraint("Equal", 12, 13),
    Sketcher.Constraint("Equal", 13, 14),
    Sketcher.Constraint("Equal", 14, 15),
    Sketcher.Constraint("Horizontal", 0, 3, 1, 3),
    Sketcher.Constraint("Horizontal", 2, 3, 3, 3),
    Sketcher.Constraint("Horizontal", 4, 3, 6, 3),
    Sketcher.Constraint("Horizontal", 5, 3, 7, 3),
    Sketcher.Constraint("Horizontal", 6, 3, 8, 3),
    Sketcher.Constraint("Horizontal", 7, 3, 9, 3),
    Sketcher.Constraint("Horizontal", 8, 3, 10, 3),
    Sketcher.Constraint("Horizontal", 9, 3, 11, 3),
    Sketcher.Constraint("Horizontal", 1, 3, 12, 3),
    Sketcher.Constraint("Horizontal", 12, 3, 13, 3),
    Sketcher.Constraint("Horizontal", 3, 3, 14, 3),
    Sketcher.Constraint("Horizontal", 14, 3, 15, 3),
    Sketcher.Constraint("Vertical", 0, 3, 2, 3),
    Sketcher.Constraint("Vertical", 1, 3, 3, 3),
    Sketcher.Constraint("Vertical", 4, 3, 5, 3),
    Sketcher.Constraint("Vertical", 6, 3, 7, 3),
    Sketcher.Constraint("Vertical", 8, 3, 9, 3),
    Sketcher.Constraint("Vertical", 10, 3, 11, 3),
    Sketcher.Constraint("Vertical", 13, 3, 14, 3),
    Sketcher.Constraint("Vertical", 12, 3, 15, 3),
    Sketcher.Constraint("Diameter", 0, 3.3),
    Sketcher.Constraint("DistanceX", -1, 1, 0, 3, 24.0),
    Sketcher.Constraint("DistanceY", 0, 3, -1, 1, 32.0),
    Sketcher.Constraint("DistanceX", -1, 1, 1, 3, 89.0),
    Sketcher.Constraint("DistanceY", 2, 3, -1, 1, 115.0),
    Sketcher.Constraint("DistanceX", -1, 1, 4, 3, 136.0),
    Sketcher.Constraint("DistanceY", 4, 3, -1, 1, 122.0),
    Sketcher.Constraint("DistanceY", 5, 3, -1, 1, 236.0),
    Sketcher.Constraint("DistanceX", -1, 1, 6, 3, 203.0),
    Sketcher.Constraint("DistanceX", -1, 1, 8, 3, 229.0),
    Sketcher.Constraint("DistanceX", -1, 1, 10, 3, 296.0),
    Sketcher.Constraint("DistanceX", -1, 1, 12, 3, 343.0),
    Sketcher.Constraint("DistanceX", -1, 1, 13, 3, 408.0),
])
doc.recompute()
hole4 = body.newObject("PartDesign::Hole", "Hole003")
hole4.Profile = sketch6
hole4.ThreadType = "None"
hole4.Diameter = 3.3
hole4.DepthType = "ThroughAll"

# Sketch on XZ plane
sketch7 = body.newObject("Sketcher::SketchObject", "Sketch006")
sketch7.AttachmentSupport = (doc.getObject("XZ_Plane"), [""])
sketch7.MapMode = "FlatFace"
sketch7.addGeometry([
    Part.Circle(App.Vector(175, -37, 0), App.Vector(0, 0, 1), 1.65),
    Part.Circle(App.Vector(257, -37, 0), App.Vector(0, 0, 1), 1.65),
    Part.Circle(App.Vector(257, -101, 0), App.Vector(0, 0, 1), 1.65),
    Part.Circle(App.Vector(175, -101, 0), App.Vector(0, 0, 1), 1.65),
], False)
sketch7.addConstraint([
    Sketcher.Constraint("Equal", 0, 1),
    Sketcher.Constraint("Equal", 1, 2),
    Sketcher.Constraint("Equal", 2, 3),
    Sketcher.Constraint("Horizontal", 0, 3, 1, 3),
    Sketcher.Constraint("Horizontal", 2, 3, 3, 3),
    Sketcher.Constraint("Vertical", 1, 3, 2, 3),
    Sketcher.Constraint("Vertical", 0, 3, 3, 3),
    Sketcher.Constraint("Diameter", 0, 3.3),
    Sketcher.Constraint("DistanceX", -1, 1, 0, 3, 175.0),
    Sketcher.Constraint("DistanceY", 0, 3, -1, 1, 37.0),
    Sketcher.Constraint("DistanceX", -1, 1, 1, 3, 257.0),
    Sketcher.Constraint("DistanceY", 2, 3, -1, 1, 101.0),
])
doc.recompute()
hole5 = body.newObject("PartDesign::Hole", "Hole004")
hole5.Profile = sketch7
hole5.ThreadType = "None"
hole5.Diameter = 3.3
hole5.DepthType = "ThroughAll"

doc.recompute()
